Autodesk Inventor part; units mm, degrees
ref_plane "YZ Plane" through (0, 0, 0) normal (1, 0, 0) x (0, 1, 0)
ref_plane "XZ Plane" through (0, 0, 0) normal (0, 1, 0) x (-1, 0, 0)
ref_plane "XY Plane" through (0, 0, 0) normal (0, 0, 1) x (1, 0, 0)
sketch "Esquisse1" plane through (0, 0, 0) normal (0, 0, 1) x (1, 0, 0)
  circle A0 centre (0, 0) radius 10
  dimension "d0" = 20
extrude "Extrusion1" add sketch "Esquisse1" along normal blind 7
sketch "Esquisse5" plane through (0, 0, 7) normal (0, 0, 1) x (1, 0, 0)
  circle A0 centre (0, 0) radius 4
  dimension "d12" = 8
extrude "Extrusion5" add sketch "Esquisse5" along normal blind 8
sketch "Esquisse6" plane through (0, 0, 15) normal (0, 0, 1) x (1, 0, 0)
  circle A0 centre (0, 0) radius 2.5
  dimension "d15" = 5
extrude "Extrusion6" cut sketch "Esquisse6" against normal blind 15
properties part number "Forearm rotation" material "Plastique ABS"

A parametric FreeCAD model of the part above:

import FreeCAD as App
import Part
import Sketcher
from FreeCAD import Vector

doc = App.newDocument("Part")
body = doc.addObject("PartDesign::Body", "Body")

# Sketch on XY plane
sketch1 = doc.addObject("Sketcher::SketchObject", "Sketch")
body.addObject(sketch1)
sketch1.AttachmentSupport = (doc.XY_Plane, [""])
sketch1.MapMode = "FlatFace"
sketch1.addGeometry(Part.Circle(Vector(0, 0, 0), Vector(0, 0, 1), 10), False)
sketch1.addConstraint([
    Sketcher.Constraint("Coincident", 0, 3, -1, 1),
    Sketcher.Constraint("Diameter", 0, 20.0),
])
pad1 = doc.addObject("PartDesign::Pad", "Pad")
body.addObject(pad1)
pad1.Profile = sketch1
pad1.Length = 7

# Sketch on XY plane
sketch2 = doc.addObject("Sketcher::SketchObject", "Sketch001")
body.addObject(sketch2)
sketch2.AttachmentSupport = (doc.XY_Plane, [""])
sketch2.MapMode = "FlatFace"
sketch2.AttachmentOffset = App.Placement(Vector(0, 0, 7), App.Rotation())
sketch2.addGeometry(Part.Circle(Vector(0, 0, 0), Vector(0, 0, 1), 4), False)
sketch2.addConstraint([
    Sketcher.Constraint("Coincident", 0, 3, -1, 1),
    Sketcher.Constraint("Diameter", 0, 8.0),
])
pad2 = doc.addObject("PartDesign::Pad", "Pad001")
body.addObject(pad2)
pad2.Profile = sketch2
pad2.Length = 8

# Sketch on XY plane
sketch3 = doc.addObject("Sketcher::SketchObject", "Sketch002")
body.addObject(sketch3)
sketch3.AttachmentSupport = (doc.XY_Plane, [""])
sketch3.MapMode = "FlatFace"
sketch3.AttachmentOffset = App.Placement(Vector(0, 0, 15), App.Rotation())
sketch3.addGeometry(Part.Circle(Vector(0, 0, 0), Vector(0, 0, 1), 2.5), False)
sketch3.addConstraint([
    Sketcher.Constraint("Coincident", 0, 3, -1, 1),
    Sketcher.Constraint("Diameter", 0, 5.0),
])
pocket1 = doc.addObject("PartDesign::Pocket", "Pocket")
body.addObject(pocket1)
pocket1.Profile = sketch3
pocket1.Length = 15

doc.recompute()
